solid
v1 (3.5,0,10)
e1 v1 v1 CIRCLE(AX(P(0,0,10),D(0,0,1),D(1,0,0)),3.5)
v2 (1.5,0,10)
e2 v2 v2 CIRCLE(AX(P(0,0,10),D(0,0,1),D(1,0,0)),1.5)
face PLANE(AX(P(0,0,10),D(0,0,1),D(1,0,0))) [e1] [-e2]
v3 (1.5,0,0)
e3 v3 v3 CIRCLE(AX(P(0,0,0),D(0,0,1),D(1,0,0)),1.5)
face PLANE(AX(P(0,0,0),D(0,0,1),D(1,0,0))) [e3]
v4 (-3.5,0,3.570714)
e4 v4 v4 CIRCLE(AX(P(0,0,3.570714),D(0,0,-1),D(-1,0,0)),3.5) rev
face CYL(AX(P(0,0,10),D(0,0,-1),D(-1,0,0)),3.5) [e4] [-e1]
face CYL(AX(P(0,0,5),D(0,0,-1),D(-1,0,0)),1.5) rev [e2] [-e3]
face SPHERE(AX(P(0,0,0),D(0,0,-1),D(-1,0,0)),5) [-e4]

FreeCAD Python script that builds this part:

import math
import FreeCAD as App
import Part
import Sketcher

doc = App.newDocument("Part")
body = doc.addObject("PartDesign::Body", "Body")

# Sketch on XY plane
sketch1 = doc.addObject("Sketcher::SketchObject", "Sketch")
body.addObject(sketch1)
sketch1.AttachmentSupport = (doc.XY_Plane, [""])
sketch1.MapMode = "FlatFace"
sketch1.addGeometry([
    Part.LineSegment(App.Vector(0, 5, 0), App.Vector(0, -5, 0)),
    Part.ArcOfCircle(Part.Circle(App.Vector(0, 0, 0), App.Vector(0, 0, 1), 5), math.radians(-90), math.radians(90)),
], False)
sketch1.addConstraint([
    Sketcher.Constraint("Coincident", 0, 1, 1, 2),
    Sketcher.Constraint("Coincident", 1, 1, 0, 2),
    Sketcher.Constraint("Vertical", 0),
    Sketcher.Constraint("Coincident", 1, 3, -1, 1),
    Sketcher.Constraint("PointOnObject", 0, 1, -2),
    Sketcher.Constraint("Radius", 1, 5.0),
])
revolution = doc.addObject("PartDesign::Revolution", "Revolution")
body.addObject(revolution)
revolution.Profile = sketch1
revolution.ReferenceAxis = (sketch1, ["V_Axis"])
revolution.Angle = 360

# Sketch on XY plane
sketch2 = doc.addObject("Sketcher::SketchObject", "Sketch001")
body.addObject(sketch2)
sketch2.AttachmentSupport = (doc.XY_Plane, [""])
sketch2.MapMode = "FlatFace"
sketch2.addGeometry(Part.Circle(App.Vector(0, 0, 0), App.Vector(0, 0, 1), 1.5), False)
sketch2.addConstraint([
    Sketcher.Constraint("Coincident", 0, 3, -1, 1),
    Sketcher.Constraint("Diameter", 0, 3.0),
])
pocket1 = doc.addObject("PartDesign::Pocket", "Pocket")
body.addObject(pocket1)
pocket1.Profile = sketch2
pocket1.Type = "ThroughAll"
pocket1.Reversed = True

# Sketch on XY plane
sketch3 = doc.addObject("Sketcher::SketchObject", "Sketch002")
body.addObject(sketch3)
sketch3.AttachmentSupport = (doc.XY_Plane, [""])
sketch3.MapMode = "FlatFace"
sketch3.addGeometry([
    Part.Circle(App.Vector(0, 0, 0), App.Vector(0, 0, 1), 3.5),
    Part.Circle(App.Vector(0, 0, 0), App.Vector(0, 0, 1), 1.5),
], False)
sketch3.addConstraint([
    Sketcher.Constraint("Coincident", 0, 3, -1, 1),
    Sketcher.Constraint("Coincident", 1, 3, -1, 1),
    Sketcher.Constraint("Diameter", 0, 7.0),
    Sketcher.Constraint("Diameter", 1, 3.0),
])
pad1 = doc.addObject("PartDesign::Pad", "Pad")
body.addObject(pad1)
pad1.Profile = sketch3
pad1.Length = 10

doc.recompute()
